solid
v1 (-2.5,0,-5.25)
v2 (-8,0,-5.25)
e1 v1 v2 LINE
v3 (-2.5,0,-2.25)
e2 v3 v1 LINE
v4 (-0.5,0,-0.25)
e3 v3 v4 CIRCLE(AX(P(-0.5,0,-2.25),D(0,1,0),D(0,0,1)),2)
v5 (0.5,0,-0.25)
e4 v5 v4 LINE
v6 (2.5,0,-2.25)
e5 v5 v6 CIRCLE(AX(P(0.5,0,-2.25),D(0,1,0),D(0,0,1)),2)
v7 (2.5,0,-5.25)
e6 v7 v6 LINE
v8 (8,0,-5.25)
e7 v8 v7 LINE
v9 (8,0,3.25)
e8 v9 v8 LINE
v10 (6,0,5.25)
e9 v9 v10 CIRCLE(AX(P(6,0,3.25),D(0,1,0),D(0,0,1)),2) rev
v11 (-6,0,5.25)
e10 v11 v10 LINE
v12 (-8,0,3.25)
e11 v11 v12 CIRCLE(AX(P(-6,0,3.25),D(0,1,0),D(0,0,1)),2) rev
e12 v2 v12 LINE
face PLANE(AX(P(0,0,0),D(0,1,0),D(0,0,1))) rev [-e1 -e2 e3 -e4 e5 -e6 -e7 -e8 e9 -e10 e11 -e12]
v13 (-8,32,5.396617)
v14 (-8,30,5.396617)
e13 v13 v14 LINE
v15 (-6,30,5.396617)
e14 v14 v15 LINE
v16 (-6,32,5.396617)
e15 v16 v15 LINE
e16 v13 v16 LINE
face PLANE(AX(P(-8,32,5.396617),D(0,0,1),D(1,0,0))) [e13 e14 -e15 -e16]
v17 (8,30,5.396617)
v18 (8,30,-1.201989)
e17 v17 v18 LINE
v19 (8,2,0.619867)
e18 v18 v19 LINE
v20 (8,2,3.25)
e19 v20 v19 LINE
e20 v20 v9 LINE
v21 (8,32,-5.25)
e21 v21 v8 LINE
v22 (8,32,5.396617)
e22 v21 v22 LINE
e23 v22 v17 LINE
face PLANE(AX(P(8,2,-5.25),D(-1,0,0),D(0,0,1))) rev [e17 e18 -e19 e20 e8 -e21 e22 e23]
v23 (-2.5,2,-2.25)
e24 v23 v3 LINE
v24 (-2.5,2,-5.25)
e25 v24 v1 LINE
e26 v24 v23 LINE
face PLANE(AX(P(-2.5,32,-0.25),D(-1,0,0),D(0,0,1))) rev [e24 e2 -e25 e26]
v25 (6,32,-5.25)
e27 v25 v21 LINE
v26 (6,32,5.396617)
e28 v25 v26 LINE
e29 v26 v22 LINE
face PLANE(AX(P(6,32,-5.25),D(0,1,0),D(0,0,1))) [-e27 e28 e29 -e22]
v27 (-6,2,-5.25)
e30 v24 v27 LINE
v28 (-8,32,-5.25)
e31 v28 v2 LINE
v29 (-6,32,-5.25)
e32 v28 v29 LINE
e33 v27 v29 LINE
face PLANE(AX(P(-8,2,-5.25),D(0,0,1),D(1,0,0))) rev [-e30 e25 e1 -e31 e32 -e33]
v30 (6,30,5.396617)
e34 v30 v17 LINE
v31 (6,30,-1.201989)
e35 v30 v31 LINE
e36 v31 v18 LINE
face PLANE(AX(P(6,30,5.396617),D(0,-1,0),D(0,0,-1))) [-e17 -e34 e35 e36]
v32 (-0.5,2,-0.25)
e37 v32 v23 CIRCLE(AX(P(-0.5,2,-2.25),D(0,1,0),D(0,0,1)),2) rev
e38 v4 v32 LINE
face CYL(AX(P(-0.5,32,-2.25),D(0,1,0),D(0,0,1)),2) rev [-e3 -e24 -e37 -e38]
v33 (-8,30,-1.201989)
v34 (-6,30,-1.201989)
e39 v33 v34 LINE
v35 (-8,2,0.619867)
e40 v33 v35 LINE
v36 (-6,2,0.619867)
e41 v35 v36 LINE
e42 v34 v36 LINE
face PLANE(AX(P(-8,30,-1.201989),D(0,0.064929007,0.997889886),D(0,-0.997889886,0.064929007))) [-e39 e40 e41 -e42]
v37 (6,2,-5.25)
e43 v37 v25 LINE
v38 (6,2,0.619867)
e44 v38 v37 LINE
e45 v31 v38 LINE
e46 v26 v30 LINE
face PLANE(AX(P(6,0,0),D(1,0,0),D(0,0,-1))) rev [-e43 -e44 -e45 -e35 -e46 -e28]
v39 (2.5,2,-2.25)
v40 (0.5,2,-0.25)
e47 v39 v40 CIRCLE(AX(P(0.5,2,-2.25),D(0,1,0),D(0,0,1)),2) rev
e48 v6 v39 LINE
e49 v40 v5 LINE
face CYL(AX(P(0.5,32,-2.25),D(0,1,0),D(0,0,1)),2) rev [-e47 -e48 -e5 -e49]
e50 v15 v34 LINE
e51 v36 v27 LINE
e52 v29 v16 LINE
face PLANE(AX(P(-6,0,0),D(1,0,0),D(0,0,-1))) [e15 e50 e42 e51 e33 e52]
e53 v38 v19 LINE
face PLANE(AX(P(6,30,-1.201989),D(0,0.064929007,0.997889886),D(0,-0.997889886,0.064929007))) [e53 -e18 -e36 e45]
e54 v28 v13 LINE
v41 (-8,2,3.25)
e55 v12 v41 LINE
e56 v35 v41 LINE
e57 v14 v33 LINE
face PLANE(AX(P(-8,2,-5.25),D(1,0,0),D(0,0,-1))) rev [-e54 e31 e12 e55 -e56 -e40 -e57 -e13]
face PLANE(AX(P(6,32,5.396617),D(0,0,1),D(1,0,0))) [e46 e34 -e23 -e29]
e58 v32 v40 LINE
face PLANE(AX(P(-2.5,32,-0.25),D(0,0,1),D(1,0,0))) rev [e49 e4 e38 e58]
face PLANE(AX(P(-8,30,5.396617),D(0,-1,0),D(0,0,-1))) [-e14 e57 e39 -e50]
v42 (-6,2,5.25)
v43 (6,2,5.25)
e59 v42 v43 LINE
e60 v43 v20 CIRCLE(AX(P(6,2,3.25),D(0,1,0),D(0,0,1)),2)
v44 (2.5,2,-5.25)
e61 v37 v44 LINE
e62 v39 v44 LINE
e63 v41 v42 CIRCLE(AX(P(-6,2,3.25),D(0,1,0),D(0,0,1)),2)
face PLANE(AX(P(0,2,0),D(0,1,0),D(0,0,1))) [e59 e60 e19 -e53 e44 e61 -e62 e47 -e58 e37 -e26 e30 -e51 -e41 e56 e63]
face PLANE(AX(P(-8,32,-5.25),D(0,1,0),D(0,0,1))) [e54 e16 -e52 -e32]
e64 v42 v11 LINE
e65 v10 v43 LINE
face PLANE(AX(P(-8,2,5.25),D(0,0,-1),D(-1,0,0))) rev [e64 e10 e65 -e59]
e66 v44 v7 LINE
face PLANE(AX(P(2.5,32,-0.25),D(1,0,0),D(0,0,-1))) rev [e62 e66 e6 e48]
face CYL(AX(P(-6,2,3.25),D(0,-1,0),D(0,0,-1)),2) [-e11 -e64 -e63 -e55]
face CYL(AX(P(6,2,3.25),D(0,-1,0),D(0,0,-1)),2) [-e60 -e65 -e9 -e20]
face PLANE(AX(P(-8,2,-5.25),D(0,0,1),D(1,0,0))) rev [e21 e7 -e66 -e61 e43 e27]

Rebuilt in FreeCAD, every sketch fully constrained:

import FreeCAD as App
import Part
import Sketcher

V = App.Vector
Q = App.Units.Quantity


def edges_at(feature, points):
    """Names of the edges that pass closest to the given points."""
    edges = feature.Shape.Edges
    near = lambda p: min(range(len(edges)), key=lambda i: edges[i].distToShape(Part.Vertex(*p))[0])
    return sorted({f"Edge{near(p) + 1}" for p in points})

doc = App.newDocument("Part")
body = doc.addObject("PartDesign::Body", "Body")

sketch1 = body.newObject("Sketcher::SketchObject", "Sketch")
sketch1.AttachmentSupport = (doc.getObject("XZ_Plane"), [""])
sketch1.MapMode = "FlatFace"
sketch1.addGeometry(Part.LineSegment(V(-8, -5, 0), V(-8, 5, 0)), False)
sketch1.addGeometry(Part.LineSegment(V(-8, 5, 0), V(8, 5, 0)), False)
sketch1.addGeometry(Part.LineSegment(V(8, 5, 0), V(8, -5, 0)), False)
sketch1.addGeometry(Part.LineSegment(V(8, -5, 0), V(-8, -5, 0)), False)
sketch1.addConstraint(Sketcher.Constraint("Coincident", 0, 2, 1, 1))
sketch1.addConstraint(Sketcher.Constraint("Coincident", 1, 2, 2, 1))
sketch1.addConstraint(Sketcher.Constraint("Coincident", 2, 2, 3, 1))
sketch1.addConstraint(Sketcher.Constraint("Coincident", 3, 2, 0, 1))
sketch1.addConstraint(Sketcher.Constraint("Vertical", 0))
sketch1.addConstraint(Sketcher.Constraint("Horizontal", 1))
sketch1.addConstraint(Sketcher.Constraint("Vertical", 2))
sketch1.addConstraint(Sketcher.Constraint("Horizontal", 3))
sketch1.addConstraint(Sketcher.Constraint("Symmetric", 0, 2, 2, 2, -1, 1))
sketch1.addConstraint(Sketcher.Constraint("DistanceX", 1, 1, 1, 2, Q("16 mm")))
sketch1.addConstraint(Sketcher.Constraint("DistanceY", 0, 1, 0, 2, Q("10.5 mm")))
pad1 = body.newObject("PartDesign::Pad", "Pad")
pad1.Profile = sketch1
pad1.Length = 2
pad1.Reversed = True

sketch2 = body.newObject("Sketcher::SketchObject", "Sketch001")
sketch2.AttachmentSupport = (doc.getObject("YZ_Plane"), [""])
sketch2.MapMode = "FlatFace"
sketch2.AttachmentOffset = App.Placement(V(0, 0, 8), App.Rotation())
sketch2.addGeometry(Part.LineSegment(V(0, -5.2, 0), V(32, -5.2, 0)), False)
sketch2.addGeometry(Part.LineSegment(V(32, -5.2, 0), V(32, 5.4, 0)), False)
sketch2.addGeometry(Part.LineSegment(V(32, 5.4, 0), V(30, 5.4, 0)), False)
sketch2.addGeometry(Part.LineSegment(V(30, 5.4, 0), V(30, -1.2, 0)), False)
sketch2.addGeometry(Part.LineSegment(V(30, -1.2, 0), V(0, 0.8, 0)), False)
sketch2.addGeometry(Part.LineSegment(V(0, 0.8, 0), V(0, -5.2, 0)), False)
sketch2.addConstraint(Sketcher.Constraint("Coincident", 0, 2, 1, 1))
sketch2.addConstraint(Sketcher.Constraint("Coincident", 1, 2, 2, 1))
sketch2.addConstraint(Sketcher.Constraint("Coincident", 2, 2, 3, 1))
sketch2.addConstraint(Sketcher.Constraint("Coincident", 3, 2, 4, 1))
sketch2.addConstraint(Sketcher.Constraint("Coincident", 4, 2, 5, 1))
sketch2.addConstraint(Sketcher.Constraint("Coincident", 5, 2, 0, 1))
sketch2.addConstraint(Sketcher.Constraint("Horizontal", 0))
sketch2.addConstraint(Sketcher.Constraint("Vertical", 1))
sketch2.addConstraint(Sketcher.Constraint("Horizontal", 2))
sketch2.addConstraint(Sketcher.Constraint("Vertical", 3))
sketch2.addConstraint(Sketcher.Constraint("Vertical", 5))
sketch2.addConstraint(Sketcher.Constraint("PointOnObject", 4, 2, -2))
sketch2.addConstraint(Sketcher.Constraint("DistanceX", 0, 1, 0, 2, Q("32 mm")))
sketch2.addConstraint(Sketcher.Constraint("DistanceX", 2, 2, 2, 1, Q("2 mm")))
sketch2.addConstraint(Sketcher.Constraint("DistanceY", 5, 2, 5, 1, Q("6 mm")))
sketch2.addConstraint(Sketcher.Constraint("DistanceY", 0, 2, -1, 1, Q("5.25 mm")))
sketch2.addConstraint(Sketcher.Constraint("DistanceY", 1, 1, 1, 2, Q("10.646617 mm")))
sketch2.addConstraint(Sketcher.Constraint("DistanceY", 3, 2, 3, 1, Q("6.598607 mm")))
pad2 = body.newObject("PartDesign::Pad", "Pad001")
pad2.Profile = sketch2
pad2.Length = 2
pad2.Reversed = True
doc.recompute()

linearpattern = body.newObject("PartDesign::LinearPattern", "LinearPattern")
linearpattern.Originals = [pad2]
linearpattern.Direction = (doc.getObject("X_Axis"), [""])
linearpattern.Mode = "offset"
linearpattern.Offset = 14
linearpattern.Occurrences = 2
linearpattern.Reversed = True
body.Tip = linearpattern

sketch3 = body.newObject("Sketcher::SketchObject", "Sketch002")
sketch3.AttachmentSupport = (doc.getObject("XZ_Plane"), [""])
sketch3.MapMode = "FlatFace"
sketch3.addGeometry(Part.LineSegment(V(-2, 0, 0), V(-2, -5, 0)), False)
sketch3.addGeometry(Part.LineSegment(V(-2, -5, 0), V(2, -5, 0)), False)
sketch3.addGeometry(Part.LineSegment(V(2, -5, 0), V(2, 0, 0)), False)
sketch3.addGeometry(Part.LineSegment(V(2, 0, 0), V(-2, 0, 0)), False)
sketch3.addConstraint(Sketcher.Constraint("Coincident", 0, 2, 1, 1))
sketch3.addConstraint(Sketcher.Constraint("Coincident", 1, 2, 2, 1))
sketch3.addConstraint(Sketcher.Constraint("Coincident", 2, 2, 3, 1))
sketch3.addConstraint(Sketcher.Constraint("Coincident", 3, 2, 0, 1))
sketch3.addConstraint(Sketcher.Constraint("Vertical", 0))
sketch3.addConstraint(Sketcher.Constraint("Horizontal", 1))
sketch3.addConstraint(Sketcher.Constraint("Vertical", 2))
sketch3.addConstraint(Sketcher.Constraint("Horizontal", 3))
sketch3.addConstraint(Sketcher.Constraint("Equal", 3, 0))
sketch3.addConstraint(Sketcher.Constraint("DistanceX", 1, 1, 1, 2, Q("5 mm")))
sketch3.addConstraint(Sketcher.Constraint("DistanceX", 0, 2, -1, 1, Q("2.5 mm")))
sketch3.addConstraint(Sketcher.Constraint("DistanceY", 0, 2, -1, 1, Q("5.25 mm")))
pocket1 = body.newObject("PartDesign::Pocket", "Pocket")
pocket1.Profile = sketch3
pocket1.Type = "ThroughAll"
doc.recompute()

fillet = body.newObject("PartDesign::Fillet", "Fillet")
fillet.Base = (pocket1, edges_at(pocket1, [
    (2.5, 1, -0.25),
    (-2.5, 1, -0.25),
    (8, 1, 5.25),
    (-8, 1, 5.25),
]))
fillet.Radius = 2

doc.recompute()
